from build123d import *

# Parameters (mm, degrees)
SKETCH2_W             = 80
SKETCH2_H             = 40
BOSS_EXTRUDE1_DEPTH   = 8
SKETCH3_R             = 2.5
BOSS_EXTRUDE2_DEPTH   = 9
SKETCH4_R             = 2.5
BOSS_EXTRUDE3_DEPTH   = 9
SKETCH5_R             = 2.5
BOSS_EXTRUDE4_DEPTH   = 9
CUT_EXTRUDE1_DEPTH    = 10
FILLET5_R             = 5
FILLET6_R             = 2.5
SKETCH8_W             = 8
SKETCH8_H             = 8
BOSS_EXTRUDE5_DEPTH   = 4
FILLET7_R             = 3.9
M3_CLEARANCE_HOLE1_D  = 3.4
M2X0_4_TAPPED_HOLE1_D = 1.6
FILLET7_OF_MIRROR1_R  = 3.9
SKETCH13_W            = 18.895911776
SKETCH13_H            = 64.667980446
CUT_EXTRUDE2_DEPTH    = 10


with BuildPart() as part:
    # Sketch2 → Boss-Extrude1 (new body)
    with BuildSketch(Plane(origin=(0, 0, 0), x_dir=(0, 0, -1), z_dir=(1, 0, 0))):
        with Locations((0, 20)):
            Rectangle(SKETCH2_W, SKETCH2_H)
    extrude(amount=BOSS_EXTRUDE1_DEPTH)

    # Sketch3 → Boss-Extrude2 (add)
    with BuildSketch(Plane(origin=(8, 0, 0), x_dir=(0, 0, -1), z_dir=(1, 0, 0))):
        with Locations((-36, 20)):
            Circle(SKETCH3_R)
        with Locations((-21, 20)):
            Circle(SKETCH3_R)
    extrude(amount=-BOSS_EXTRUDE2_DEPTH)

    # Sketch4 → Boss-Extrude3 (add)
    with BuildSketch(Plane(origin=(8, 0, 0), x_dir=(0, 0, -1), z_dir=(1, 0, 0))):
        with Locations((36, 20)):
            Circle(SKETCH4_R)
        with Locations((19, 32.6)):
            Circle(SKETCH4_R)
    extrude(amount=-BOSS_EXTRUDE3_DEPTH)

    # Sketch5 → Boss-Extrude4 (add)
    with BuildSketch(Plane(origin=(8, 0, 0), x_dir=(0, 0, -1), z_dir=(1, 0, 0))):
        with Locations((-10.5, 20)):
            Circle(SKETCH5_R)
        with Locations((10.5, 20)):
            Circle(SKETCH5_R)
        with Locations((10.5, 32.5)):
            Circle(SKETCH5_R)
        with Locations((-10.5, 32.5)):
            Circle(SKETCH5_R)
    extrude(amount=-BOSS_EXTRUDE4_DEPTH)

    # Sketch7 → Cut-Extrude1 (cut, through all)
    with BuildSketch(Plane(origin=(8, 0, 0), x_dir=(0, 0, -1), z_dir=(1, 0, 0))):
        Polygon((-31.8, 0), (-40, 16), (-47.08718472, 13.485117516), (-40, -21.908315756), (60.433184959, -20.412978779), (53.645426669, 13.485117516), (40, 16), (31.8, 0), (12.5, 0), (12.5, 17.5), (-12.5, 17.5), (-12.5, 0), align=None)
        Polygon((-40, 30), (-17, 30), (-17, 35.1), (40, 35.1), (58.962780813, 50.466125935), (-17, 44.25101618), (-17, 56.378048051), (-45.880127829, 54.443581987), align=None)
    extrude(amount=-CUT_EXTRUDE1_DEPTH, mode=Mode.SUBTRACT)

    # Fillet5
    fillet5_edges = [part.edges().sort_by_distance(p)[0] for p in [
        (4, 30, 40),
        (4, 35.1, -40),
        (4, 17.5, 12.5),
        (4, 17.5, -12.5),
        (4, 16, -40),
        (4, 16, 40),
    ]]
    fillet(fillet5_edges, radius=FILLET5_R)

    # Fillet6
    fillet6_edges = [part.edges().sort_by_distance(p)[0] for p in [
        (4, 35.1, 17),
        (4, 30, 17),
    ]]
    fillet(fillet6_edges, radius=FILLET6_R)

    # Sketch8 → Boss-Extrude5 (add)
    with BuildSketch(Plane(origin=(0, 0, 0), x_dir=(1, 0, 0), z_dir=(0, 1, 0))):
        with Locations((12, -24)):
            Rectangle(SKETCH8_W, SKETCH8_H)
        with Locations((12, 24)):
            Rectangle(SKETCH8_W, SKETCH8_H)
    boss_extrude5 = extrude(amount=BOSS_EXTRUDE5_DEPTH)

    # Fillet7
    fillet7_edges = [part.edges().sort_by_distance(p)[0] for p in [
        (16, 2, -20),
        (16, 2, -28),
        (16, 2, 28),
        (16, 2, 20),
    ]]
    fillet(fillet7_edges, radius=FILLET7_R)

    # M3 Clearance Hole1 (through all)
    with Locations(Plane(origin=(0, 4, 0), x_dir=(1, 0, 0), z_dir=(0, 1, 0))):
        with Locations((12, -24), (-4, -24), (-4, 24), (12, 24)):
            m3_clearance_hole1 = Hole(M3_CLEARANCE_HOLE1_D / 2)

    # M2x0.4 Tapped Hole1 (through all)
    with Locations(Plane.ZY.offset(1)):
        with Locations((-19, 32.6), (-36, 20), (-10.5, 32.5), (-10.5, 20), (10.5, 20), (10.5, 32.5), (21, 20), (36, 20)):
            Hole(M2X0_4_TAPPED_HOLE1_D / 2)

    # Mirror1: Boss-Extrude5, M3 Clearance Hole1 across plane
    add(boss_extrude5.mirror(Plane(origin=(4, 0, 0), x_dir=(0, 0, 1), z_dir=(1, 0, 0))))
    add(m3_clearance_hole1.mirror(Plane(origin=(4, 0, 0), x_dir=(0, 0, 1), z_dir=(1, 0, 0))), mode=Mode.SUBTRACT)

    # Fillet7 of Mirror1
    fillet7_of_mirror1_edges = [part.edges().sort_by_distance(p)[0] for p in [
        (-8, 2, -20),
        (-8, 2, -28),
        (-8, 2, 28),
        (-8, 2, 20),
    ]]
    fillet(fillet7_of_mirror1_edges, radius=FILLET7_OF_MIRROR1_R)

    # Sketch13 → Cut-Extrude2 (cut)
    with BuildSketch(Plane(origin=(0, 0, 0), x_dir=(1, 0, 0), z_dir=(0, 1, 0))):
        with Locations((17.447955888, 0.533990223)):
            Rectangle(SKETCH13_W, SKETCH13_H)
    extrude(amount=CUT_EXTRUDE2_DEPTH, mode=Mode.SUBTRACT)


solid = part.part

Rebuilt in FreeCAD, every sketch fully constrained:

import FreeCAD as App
import Part
import Sketcher

V = App.Vector


def edges_at(feature, points):
    """Names of the edges that pass closest to the given points."""
    edges = feature.Shape.Edges
    near = lambda p: min(range(len(edges)), key=lambda i: edges[i].distToShape(Part.Vertex(*p))[0])
    return sorted({f"Edge{near(p) + 1}" for p in points})


def add_polygon(sketch, points):
    """Adds a closed chain of lines whose ends are joined by coincident constraints."""
    first, n = sketch.GeometryCount, len(points)
    for a, b in zip(points, points[1:] + points[:1]):
        sketch.addGeometry(Part.LineSegment(App.Vector(*a, 0), App.Vector(*b, 0)), False)
    for i in range(n):
        sketch.addConstraint(Sketcher.Constraint("Coincident", first + i, 2, first + (i + 1) % n, 1))

doc = App.newDocument("Part")
body = doc.addObject("PartDesign::Body", "Body")

# Sketch on YZ plane
sketch1 = body.newObject("Sketcher::SketchObject", "Sketch")
sketch1.AttachmentSupport = (doc.getObject("YZ_Plane"), [""])
sketch1.MapMode = "FlatFace"
add_polygon(sketch1, [(40, 40), (0, 40), (0, -40), (40, -40)])  # lines 0-3
sketch1.addConstraint([
    Sketcher.Constraint("Horizontal", 0),
    Sketcher.Constraint("Vertical", 1),
    Sketcher.Constraint("Horizontal", 2),
    Sketcher.Constraint("Vertical", 3),
    Sketcher.Constraint("Symmetric", 0, 2, 1, 2, -1, 1),
    Sketcher.Constraint("DistanceX", 0, 2, 0, 1, 40.0),
    Sketcher.Constraint("DistanceY", 1, 2, 1, 1, 80.0),
])
pad1 = body.newObject("PartDesign::Pad", "Pad")
pad1.Profile = sketch1
pad1.Length = 8

# Sketch on YZ plane
sketch2 = body.newObject("Sketcher::SketchObject", "Sketch001")
sketch2.AttachmentSupport = (doc.getObject("YZ_Plane"), [""])
sketch2.MapMode = "FlatFace"
sketch2.AttachmentOffset = App.Placement(V(0, 0, 8), App.Rotation())
sketch2.addGeometry([
    Part.Circle(V(20, 36, 0), V(0, 0, 1), 2.5),
    Part.Circle(V(20, 21, 0), V(0, 0, 1), 2.5),
], False)
sketch2.addConstraint([
    Sketcher.Constraint("Equal", 0, 1),
    Sketcher.Constraint("Vertical", 0, 3, 1, 3),
    Sketcher.Constraint("Diameter", 0, 5.0),
    Sketcher.Constraint("DistanceX", -1, 1, 0, 3, 20.0),
    Sketcher.Constraint("DistanceY", -1, 1, 0, 3, 36.0),
    Sketcher.Constraint("DistanceY", -1, 1, 1, 3, 21.0),
])
pad2 = body.newObject("PartDesign::Pad", "Pad001")
pad2.Profile = sketch2
pad2.Length = 9
pad2.Reversed = True

# Sketch on YZ plane
sketch3 = body.newObject("Sketcher::SketchObject", "Sketch002")
sketch3.AttachmentSupport = (doc.getObject("YZ_Plane"), [""])
sketch3.MapMode = "FlatFace"
sketch3.AttachmentOffset = App.Placement(V(0, 0, 8), App.Rotation())
sketch3.addGeometry([
    Part.Circle(V(20, -36, 0), V(0, 0, 1), 2.5),
    Part.Circle(V(32.6, -19, 0), V(0, 0, 1), 2.5),
], False)
sketch3.addConstraint([
    Sketcher.Constraint("Equal", 0, 1),
    Sketcher.Constraint("Diameter", 0, 5.0),
    Sketcher.Constraint("DistanceX", -1, 1, 0, 3, 20.0),
    Sketcher.Constraint("DistanceY", 0, 3, -1, 1, 36.0),
    Sketcher.Constraint("DistanceY", 1, 3, -1, 1, 19.0),
    Sketcher.Constraint("DistanceX", -1, 1, 1, 3, 32.6),
])
pad3 = body.newObject("PartDesign::Pad", "Pad002")
pad3.Profile = sketch3
pad3.Length = 9
pad3.Reversed = True

# Sketch on YZ plane
sketch4 = body.newObject("Sketcher::SketchObject", "Sketch003")
sketch4.AttachmentSupport = (doc.getObject("YZ_Plane"), [""])
sketch4.MapMode = "FlatFace"
sketch4.AttachmentOffset = App.Placement(V(0, 0, 8), App.Rotation())
sketch4.addGeometry([
    Part.Circle(V(20, 10.5, 0), V(0, 0, 1), 2.5),
    Part.Circle(V(20, -10.5, 0), V(0, 0, 1), 2.5),
    Part.Circle(V(32.5, -10.5, 0), V(0, 0, 1), 2.5),
    Part.Circle(V(32.5, 10.5, 0), V(0, 0, 1), 2.5),
], False)
sketch4.addConstraint([
    Sketcher.Constraint("Equal", 0, 1),
    Sketcher.Constraint("Equal", 1, 2),
    Sketcher.Constraint("Equal", 2, 3),
    Sketcher.Constraint("Symmetric", 0, 3, 1, 3, -1),
    Sketcher.Constraint("Symmetric", 2, 3, 3, 3, -1),
    Sketcher.Constraint("Horizontal", 1, 3, 2, 3),
    Sketcher.Constraint("Diameter", 0, 5.0),
    Sketcher.Constraint("DistanceX", -1, 1, 0, 3, 20.0),
    Sketcher.Constraint("DistanceY", 1, 3, 0, 3, 21.0),
    Sketcher.Constraint("DistanceX", -1, 1, 2, 3, 32.5),
])
pad4 = body.newObject("PartDesign::Pad", "Pad003")
pad4.Profile = sketch4
pad4.Length = 9
pad4.Reversed = True

# Sketch on YZ plane
sketch5 = body.newObject("Sketcher::SketchObject", "Sketch004")
sketch5.AttachmentSupport = (doc.getObject("YZ_Plane"), [""])
sketch5.MapMode = "FlatFace"
sketch5.AttachmentOffset = App.Placement(V(0, 0, 8), App.Rotation())
add_polygon(sketch5, [(0, 32), (16, 40), (13, 47), (-22, 40), (-20, -60), (13, -54), (16, -40), (0, -32), (0, -12), (18, -12), (18, 12), (0, 12)])  # lines 0-11
add_polygon(sketch5, [(30, 40), (30, 17), (35, 17), (35, -40), (50, -59), (44, 17), (56, 17), (54, 46)])  # lines 12-19
sketch5.addConstraint([
    Sketcher.Constraint("Vertical", 7),
    Sketcher.Constraint("Horizontal", 8),
    Sketcher.Constraint("Vertical", 9),
    Sketcher.Constraint("Horizontal", 10),
    Sketcher.Constraint("Vertical", 11),
    Sketcher.Constraint("Vertical", 12),
    Sketcher.Constraint("Horizontal", 13),
    Sketcher.Constraint("Vertical", 14),
    Sketcher.Constraint("Horizontal", 17),
    Sketcher.Constraint("Symmetric", 7, 2, 10, 2, -1, 1),
    Sketcher.Constraint("Symmetric", 0, 2, 5, 2, -1),
    Sketcher.Constraint("Symmetric", 6, 2, 11, 2, -1),
    Sketcher.Constraint("Parallel", 2, 4),
    Sketcher.Constraint("Horizontal", 0, 2, 2, 2),
    Sketcher.Constraint("Horizontal", 5, 2, 14, 2),
    Sketcher.Constraint("Horizontal", 13, 2, 16, 2),
    Sketcher.Constraint("Horizontal", 2, 2, 19, 2),
    Sketcher.Constraint("Vertical", 1, 2, 4, 2),
    Sketcher.Constraint("DistanceY", 9, 1, 9, 2, 25.0),
    Sketcher.Constraint("DistanceY", 12, 2, 12, 1, 23.0),
    Sketcher.Constraint("DistanceY", 14, 2, 14, 1, 57.0),
    Sketcher.Constraint("DistanceX", 8, 1, 8, 2, 17.5),
    Sketcher.Constraint("DistanceX", 13, 1, 13, 2, 5.1),
    Sketcher.Constraint("DistanceY", 7, 1, 7, 2, 19.3),
    Sketcher.Constraint("DistanceX", -1, 1, 0, 2, 16.0),
    Sketcher.Constraint("DistanceX", -1, 1, 12, 2, 30.0),
    Sketcher.Constraint("DistanceX", 17, 1, 17, 2, 12.127032),
    Sketcher.Constraint("Distance", 1, 7.520161),
    Sketcher.Constraint("Distance", 2, 36.096029),
    Sketcher.Constraint("Distance", 4, 34.571008),
    Sketcher.Constraint("Distance", 5, 13.875241),
    Sketcher.Constraint("Distance", 16, 76.21661),
    Sketcher.Constraint("DistanceX", 3, 2, -1, 1, 20.412979),
    Sketcher.Constraint("DistanceY", 15, 2, -1, 1, 58.962781),
    Sketcher.Constraint("DistanceX", -1, 1, 17, 2, 56.378048),
    Sketcher.Constraint("DistanceX", -1, 1, 18, 2, 54.443582),
    Sketcher.Constraint("Distance", 18, 28.944843),
])
pocket1 = body.newObject("PartDesign::Pocket", "Pocket")
pocket1.Profile = sketch5
pocket1.Type = "ThroughAll"
doc.recompute()

fillet = body.newObject("PartDesign::Fillet", "Fillet")
fillet.Base = (pocket1, edges_at(pocket1, [
    (4, 30, 40),
    (4, 35.1, -40),
    (4, 17.5, 12.5),
    (4, 17.5, -12.5),
    (4, 16, -40),
    (4, 16, 40),
]))
fillet.Radius = 5
doc.recompute()

fillet2 = body.newObject("PartDesign::Fillet", "Fillet001")
fillet2.Base = (fillet, edges_at(fillet, [(4, 35.1, 17), (4, 30, 17)]))
fillet2.Radius = 2.5

# Sketch on XZ plane
sketch6 = body.newObject("Sketcher::SketchObject", "Sketch005")
sketch6.AttachmentSupport = (doc.getObject("XZ_Plane"), [""])
sketch6.MapMode = "FlatFace"
add_polygon(sketch6, [(8, 20), (8, 28), (16, 28), (16, 20)])  # lines 0-3
add_polygon(sketch6, [(8, -28), (8, -20), (16, -20), (16, -28)])  # lines 4-7
sketch6.addConstraint([
    Sketcher.Constraint("Vertical", 0),
    Sketcher.Constraint("Horizontal", 1),
    Sketcher.Constraint("Vertical", 2),
    Sketcher.Constraint("Horizontal", 3),
    Sketcher.Constraint("Vertical", 4),
    Sketcher.Constraint("Horizontal", 5),
    Sketcher.Constraint("Vertical", 6),
    Sketcher.Constraint("Horizontal", 7),
    Sketcher.Constraint("Symmetric", 3, 2, 4, 2, -1),
    Sketcher.Constraint("Symmetric", 1, 2, 6, 2, -1),
    Sketcher.Constraint("Equal", 7, 0),
    Sketcher.Constraint("DistanceX", 1, 1, 1, 2, 8.0),
    Sketcher.Constraint("DistanceX", -1, 1, 0, 2, 8.0),
    Sketcher.Constraint("DistanceY", -1, 1, 0, 2, 28.0),
])
pad5 = body.newObject("PartDesign::Pad", "Pad004")
pad5.Profile = sketch6
pad5.Length = 4
pad5.Reversed = True
doc.recompute()

fillet3 = body.newObject("PartDesign::Fillet", "Fillet002")
fillet3.Base = (pad5, edges_at(pad5, [
    (16, 2, -20),
    (16, 2, -28),
    (16, 2, 28),
    (16, 2, 20),
]))
fillet3.Radius = 3.9

# Sketch on XZ plane
sketch7 = body.newObject("Sketcher::SketchObject", "Sketch006")
sketch7.AttachmentSupport = (doc.getObject("XZ_Plane"), [""])
sketch7.MapMode = "FlatFace"
sketch7.AttachmentOffset = App.Placement(V(0, 0, -4), App.Rotation())
sketch7.addGeometry([
    Part.Circle(V(12, 24, 0), V(0, 0, 1), 1.7),
    Part.Circle(V(-4, 24, 0), V(0, 0, 1), 1.7),
    Part.Circle(V(-4, -24, 0), V(0, 0, 1), 1.7),
    Part.Circle(V(12, -24, 0), V(0, 0, 1), 1.7),
], False)
sketch7.addConstraint([
    Sketcher.Constraint("Equal", 0, 1),
    Sketcher.Constraint("Equal", 1, 2),
    Sketcher.Constraint("Equal", 2, 3),
    Sketcher.Constraint("Symmetric", 1, 3, 2, 3, -1),
    Sketcher.Constraint("Symmetric", 0, 3, 3, 3, -1),
    Sketcher.Constraint("Horizontal", 0, 3, 1, 3),
    Sketcher.Constraint("Diameter", 0, 3.4),
    Sketcher.Constraint("DistanceX", -1, 1, 0, 3, 12.0),
    Sketcher.Constraint("DistanceY", -1, 1, 0, 3, 24.0),
    Sketcher.Constraint("DistanceX", 1, 3, -1, 1, 4.0),
])
doc.recompute()
hole = body.newObject("PartDesign::Hole", "Hole")
hole.Profile = sketch7
hole.ThreadType = "None"
hole.Diameter = 3.4
hole.DepthType = "ThroughAll"
hole.Reversed = True

# Sketch on YZ plane
sketch8 = body.newObject("Sketcher::SketchObject", "Sketch007")
sketch8.AttachmentSupport = (doc.getObject("YZ_Plane"), [""])
sketch8.MapMode = "FlatFace"
sketch8.AttachmentOffset = App.Placement(V(0, 0, -1), App.Rotation())
sketch8.addGeometry([
    Part.Circle(V(32.6, -19, 0), V(0, 0, 1), 0.8),  # 0
    Part.Circle(V(20, -36, 0), V(0, 0, 1), 0.8),  # 1
    Part.Circle(V(32.5, -10.5, 0), V(0, 0, 1), 0.8),  # 2
    Part.Circle(V(20, -10.5, 0), V(0, 0, 1), 0.8),  # 3
    Part.Circle(V(20, 10.5, 0), V(0, 0, 1), 0.8),  # 4
    Part.Circle(V(32.5, 10.5, 0), V(0, 0, 1), 0.8),  # 5
    Part.Circle(V(20, 21, 0), V(0, 0, 1), 0.8),  # 6
    Part.Circle(V(20, 36, 0), V(0, 0, 1), 0.8),  # 7
], False)
sketch8.addConstraint([
    Sketcher.Constraint("Equal", 0, 1),
    Sketcher.Constraint("Equal", 1, 2),
    Sketcher.Constraint("Equal", 2, 3),
    Sketcher.Constraint("Equal", 3, 4),
    Sketcher.Constraint("Equal", 4, 5),
    Sketcher.Constraint("Equal", 5, 6),
    Sketcher.Constraint("Equal", 6, 7),
    Sketcher.Constraint("Symmetric", 3, 3, 4, 3, -1),
    Sketcher.Constraint("Symmetric", 2, 3, 5, 3, -1),
    Sketcher.Constraint("Symmetric", 1, 3, 7, 3, -1),
    Sketcher.Constraint("Horizontal", 2, 3, 3, 3),
    Sketcher.Constraint("Vertical", 1, 3, 3, 3),
    Sketcher.Constraint("Vertical", 4, 3, 6, 3),
    Sketcher.Constraint("Diameter", 0, 1.6),
    Sketcher.Constraint("DistanceY", 0, 3, -1, 1, 19.0),
    Sketcher.Constraint("DistanceX", -1, 1, 1, 3, 20.0),
    Sketcher.Constraint("DistanceY", 1, 3, -1, 1, 36.0),
    Sketcher.Constraint("DistanceY", -1, 1, 6, 3, 21.0),
    Sketcher.Constraint("DistanceY", 3, 3, 4, 3, 21.0),
    Sketcher.Constraint("DistanceX", -1, 1, 0, 3, 32.6),
    Sketcher.Constraint("DistanceX", -1, 1, 2, 3, 32.5),
])
doc.recompute()
hole2 = body.newObject("PartDesign::Hole", "Hole001")
hole2.Profile = sketch8
hole2.ThreadType = "None"
hole2.Diameter = 1.6
hole2.DepthType = "ThroughAll"
hole2.Reversed = True
doc.recompute()

datumplane = body.newObject("PartDesign::Plane", "DatumPlane")
datumplane.AttachmentSupport = (doc.getObject("YZ_Plane"), [""])
datumplane.MapMode = "FlatFace"
datumplane.AttachmentOffset = App.Placement(V(0, 0, 4), App.Rotation())
mirrored = body.newObject("PartDesign::Mirrored", "Mirrored")
mirrored.Originals = [pad5, hole]
mirrored.MirrorPlane = (datumplane, [""])
body.Tip = mirrored
doc.recompute()

fillet4 = body.newObject("PartDesign::Fillet", "Fillet003")
fillet4.Base = (mirrored, edges_at(mirrored, [
    (-8, 2, -20),
    (-8, 2, -28),
    (-8, 2, 28),
    (-8, 2, 20),
]))
fillet4.Radius = 3.9

# Sketch on XZ plane
sketch9 = body.newObject("Sketcher::SketchObject", "Sketch008")
sketch9.AttachmentSupport = (doc.getObject("XZ_Plane"), [""])
sketch9.MapMode = "FlatFace"
add_polygon(sketch9, [(8, -33), (8, 32), (27, 32), (27, -33)])  # lines 0-3
sketch9.addConstraint([
    Sketcher.Constraint("Vertical", 0),
    Sketcher.Constraint("Horizontal", 1),
    Sketcher.Constraint("Vertical", 2),
    Sketcher.Constraint("Horizontal", 3),
    Sketcher.Constraint("DistanceX", -1, 1, 0, 2, 8.0),
    Sketcher.Constraint("DistanceY", -1, 1, 0, 2, 31.8),
    Sketcher.Constraint("DistanceX", 1, 1, 1, 2, 18.895912),
    Sketcher.Constraint("DistanceY", 0, 1, 0, 2, 64.66798),
])
pocket2 = body.newObject("PartDesign::Pocket", "Pocket001")
pocket2.Profile = sketch9
pocket2.Length = 10

doc.recompute()
